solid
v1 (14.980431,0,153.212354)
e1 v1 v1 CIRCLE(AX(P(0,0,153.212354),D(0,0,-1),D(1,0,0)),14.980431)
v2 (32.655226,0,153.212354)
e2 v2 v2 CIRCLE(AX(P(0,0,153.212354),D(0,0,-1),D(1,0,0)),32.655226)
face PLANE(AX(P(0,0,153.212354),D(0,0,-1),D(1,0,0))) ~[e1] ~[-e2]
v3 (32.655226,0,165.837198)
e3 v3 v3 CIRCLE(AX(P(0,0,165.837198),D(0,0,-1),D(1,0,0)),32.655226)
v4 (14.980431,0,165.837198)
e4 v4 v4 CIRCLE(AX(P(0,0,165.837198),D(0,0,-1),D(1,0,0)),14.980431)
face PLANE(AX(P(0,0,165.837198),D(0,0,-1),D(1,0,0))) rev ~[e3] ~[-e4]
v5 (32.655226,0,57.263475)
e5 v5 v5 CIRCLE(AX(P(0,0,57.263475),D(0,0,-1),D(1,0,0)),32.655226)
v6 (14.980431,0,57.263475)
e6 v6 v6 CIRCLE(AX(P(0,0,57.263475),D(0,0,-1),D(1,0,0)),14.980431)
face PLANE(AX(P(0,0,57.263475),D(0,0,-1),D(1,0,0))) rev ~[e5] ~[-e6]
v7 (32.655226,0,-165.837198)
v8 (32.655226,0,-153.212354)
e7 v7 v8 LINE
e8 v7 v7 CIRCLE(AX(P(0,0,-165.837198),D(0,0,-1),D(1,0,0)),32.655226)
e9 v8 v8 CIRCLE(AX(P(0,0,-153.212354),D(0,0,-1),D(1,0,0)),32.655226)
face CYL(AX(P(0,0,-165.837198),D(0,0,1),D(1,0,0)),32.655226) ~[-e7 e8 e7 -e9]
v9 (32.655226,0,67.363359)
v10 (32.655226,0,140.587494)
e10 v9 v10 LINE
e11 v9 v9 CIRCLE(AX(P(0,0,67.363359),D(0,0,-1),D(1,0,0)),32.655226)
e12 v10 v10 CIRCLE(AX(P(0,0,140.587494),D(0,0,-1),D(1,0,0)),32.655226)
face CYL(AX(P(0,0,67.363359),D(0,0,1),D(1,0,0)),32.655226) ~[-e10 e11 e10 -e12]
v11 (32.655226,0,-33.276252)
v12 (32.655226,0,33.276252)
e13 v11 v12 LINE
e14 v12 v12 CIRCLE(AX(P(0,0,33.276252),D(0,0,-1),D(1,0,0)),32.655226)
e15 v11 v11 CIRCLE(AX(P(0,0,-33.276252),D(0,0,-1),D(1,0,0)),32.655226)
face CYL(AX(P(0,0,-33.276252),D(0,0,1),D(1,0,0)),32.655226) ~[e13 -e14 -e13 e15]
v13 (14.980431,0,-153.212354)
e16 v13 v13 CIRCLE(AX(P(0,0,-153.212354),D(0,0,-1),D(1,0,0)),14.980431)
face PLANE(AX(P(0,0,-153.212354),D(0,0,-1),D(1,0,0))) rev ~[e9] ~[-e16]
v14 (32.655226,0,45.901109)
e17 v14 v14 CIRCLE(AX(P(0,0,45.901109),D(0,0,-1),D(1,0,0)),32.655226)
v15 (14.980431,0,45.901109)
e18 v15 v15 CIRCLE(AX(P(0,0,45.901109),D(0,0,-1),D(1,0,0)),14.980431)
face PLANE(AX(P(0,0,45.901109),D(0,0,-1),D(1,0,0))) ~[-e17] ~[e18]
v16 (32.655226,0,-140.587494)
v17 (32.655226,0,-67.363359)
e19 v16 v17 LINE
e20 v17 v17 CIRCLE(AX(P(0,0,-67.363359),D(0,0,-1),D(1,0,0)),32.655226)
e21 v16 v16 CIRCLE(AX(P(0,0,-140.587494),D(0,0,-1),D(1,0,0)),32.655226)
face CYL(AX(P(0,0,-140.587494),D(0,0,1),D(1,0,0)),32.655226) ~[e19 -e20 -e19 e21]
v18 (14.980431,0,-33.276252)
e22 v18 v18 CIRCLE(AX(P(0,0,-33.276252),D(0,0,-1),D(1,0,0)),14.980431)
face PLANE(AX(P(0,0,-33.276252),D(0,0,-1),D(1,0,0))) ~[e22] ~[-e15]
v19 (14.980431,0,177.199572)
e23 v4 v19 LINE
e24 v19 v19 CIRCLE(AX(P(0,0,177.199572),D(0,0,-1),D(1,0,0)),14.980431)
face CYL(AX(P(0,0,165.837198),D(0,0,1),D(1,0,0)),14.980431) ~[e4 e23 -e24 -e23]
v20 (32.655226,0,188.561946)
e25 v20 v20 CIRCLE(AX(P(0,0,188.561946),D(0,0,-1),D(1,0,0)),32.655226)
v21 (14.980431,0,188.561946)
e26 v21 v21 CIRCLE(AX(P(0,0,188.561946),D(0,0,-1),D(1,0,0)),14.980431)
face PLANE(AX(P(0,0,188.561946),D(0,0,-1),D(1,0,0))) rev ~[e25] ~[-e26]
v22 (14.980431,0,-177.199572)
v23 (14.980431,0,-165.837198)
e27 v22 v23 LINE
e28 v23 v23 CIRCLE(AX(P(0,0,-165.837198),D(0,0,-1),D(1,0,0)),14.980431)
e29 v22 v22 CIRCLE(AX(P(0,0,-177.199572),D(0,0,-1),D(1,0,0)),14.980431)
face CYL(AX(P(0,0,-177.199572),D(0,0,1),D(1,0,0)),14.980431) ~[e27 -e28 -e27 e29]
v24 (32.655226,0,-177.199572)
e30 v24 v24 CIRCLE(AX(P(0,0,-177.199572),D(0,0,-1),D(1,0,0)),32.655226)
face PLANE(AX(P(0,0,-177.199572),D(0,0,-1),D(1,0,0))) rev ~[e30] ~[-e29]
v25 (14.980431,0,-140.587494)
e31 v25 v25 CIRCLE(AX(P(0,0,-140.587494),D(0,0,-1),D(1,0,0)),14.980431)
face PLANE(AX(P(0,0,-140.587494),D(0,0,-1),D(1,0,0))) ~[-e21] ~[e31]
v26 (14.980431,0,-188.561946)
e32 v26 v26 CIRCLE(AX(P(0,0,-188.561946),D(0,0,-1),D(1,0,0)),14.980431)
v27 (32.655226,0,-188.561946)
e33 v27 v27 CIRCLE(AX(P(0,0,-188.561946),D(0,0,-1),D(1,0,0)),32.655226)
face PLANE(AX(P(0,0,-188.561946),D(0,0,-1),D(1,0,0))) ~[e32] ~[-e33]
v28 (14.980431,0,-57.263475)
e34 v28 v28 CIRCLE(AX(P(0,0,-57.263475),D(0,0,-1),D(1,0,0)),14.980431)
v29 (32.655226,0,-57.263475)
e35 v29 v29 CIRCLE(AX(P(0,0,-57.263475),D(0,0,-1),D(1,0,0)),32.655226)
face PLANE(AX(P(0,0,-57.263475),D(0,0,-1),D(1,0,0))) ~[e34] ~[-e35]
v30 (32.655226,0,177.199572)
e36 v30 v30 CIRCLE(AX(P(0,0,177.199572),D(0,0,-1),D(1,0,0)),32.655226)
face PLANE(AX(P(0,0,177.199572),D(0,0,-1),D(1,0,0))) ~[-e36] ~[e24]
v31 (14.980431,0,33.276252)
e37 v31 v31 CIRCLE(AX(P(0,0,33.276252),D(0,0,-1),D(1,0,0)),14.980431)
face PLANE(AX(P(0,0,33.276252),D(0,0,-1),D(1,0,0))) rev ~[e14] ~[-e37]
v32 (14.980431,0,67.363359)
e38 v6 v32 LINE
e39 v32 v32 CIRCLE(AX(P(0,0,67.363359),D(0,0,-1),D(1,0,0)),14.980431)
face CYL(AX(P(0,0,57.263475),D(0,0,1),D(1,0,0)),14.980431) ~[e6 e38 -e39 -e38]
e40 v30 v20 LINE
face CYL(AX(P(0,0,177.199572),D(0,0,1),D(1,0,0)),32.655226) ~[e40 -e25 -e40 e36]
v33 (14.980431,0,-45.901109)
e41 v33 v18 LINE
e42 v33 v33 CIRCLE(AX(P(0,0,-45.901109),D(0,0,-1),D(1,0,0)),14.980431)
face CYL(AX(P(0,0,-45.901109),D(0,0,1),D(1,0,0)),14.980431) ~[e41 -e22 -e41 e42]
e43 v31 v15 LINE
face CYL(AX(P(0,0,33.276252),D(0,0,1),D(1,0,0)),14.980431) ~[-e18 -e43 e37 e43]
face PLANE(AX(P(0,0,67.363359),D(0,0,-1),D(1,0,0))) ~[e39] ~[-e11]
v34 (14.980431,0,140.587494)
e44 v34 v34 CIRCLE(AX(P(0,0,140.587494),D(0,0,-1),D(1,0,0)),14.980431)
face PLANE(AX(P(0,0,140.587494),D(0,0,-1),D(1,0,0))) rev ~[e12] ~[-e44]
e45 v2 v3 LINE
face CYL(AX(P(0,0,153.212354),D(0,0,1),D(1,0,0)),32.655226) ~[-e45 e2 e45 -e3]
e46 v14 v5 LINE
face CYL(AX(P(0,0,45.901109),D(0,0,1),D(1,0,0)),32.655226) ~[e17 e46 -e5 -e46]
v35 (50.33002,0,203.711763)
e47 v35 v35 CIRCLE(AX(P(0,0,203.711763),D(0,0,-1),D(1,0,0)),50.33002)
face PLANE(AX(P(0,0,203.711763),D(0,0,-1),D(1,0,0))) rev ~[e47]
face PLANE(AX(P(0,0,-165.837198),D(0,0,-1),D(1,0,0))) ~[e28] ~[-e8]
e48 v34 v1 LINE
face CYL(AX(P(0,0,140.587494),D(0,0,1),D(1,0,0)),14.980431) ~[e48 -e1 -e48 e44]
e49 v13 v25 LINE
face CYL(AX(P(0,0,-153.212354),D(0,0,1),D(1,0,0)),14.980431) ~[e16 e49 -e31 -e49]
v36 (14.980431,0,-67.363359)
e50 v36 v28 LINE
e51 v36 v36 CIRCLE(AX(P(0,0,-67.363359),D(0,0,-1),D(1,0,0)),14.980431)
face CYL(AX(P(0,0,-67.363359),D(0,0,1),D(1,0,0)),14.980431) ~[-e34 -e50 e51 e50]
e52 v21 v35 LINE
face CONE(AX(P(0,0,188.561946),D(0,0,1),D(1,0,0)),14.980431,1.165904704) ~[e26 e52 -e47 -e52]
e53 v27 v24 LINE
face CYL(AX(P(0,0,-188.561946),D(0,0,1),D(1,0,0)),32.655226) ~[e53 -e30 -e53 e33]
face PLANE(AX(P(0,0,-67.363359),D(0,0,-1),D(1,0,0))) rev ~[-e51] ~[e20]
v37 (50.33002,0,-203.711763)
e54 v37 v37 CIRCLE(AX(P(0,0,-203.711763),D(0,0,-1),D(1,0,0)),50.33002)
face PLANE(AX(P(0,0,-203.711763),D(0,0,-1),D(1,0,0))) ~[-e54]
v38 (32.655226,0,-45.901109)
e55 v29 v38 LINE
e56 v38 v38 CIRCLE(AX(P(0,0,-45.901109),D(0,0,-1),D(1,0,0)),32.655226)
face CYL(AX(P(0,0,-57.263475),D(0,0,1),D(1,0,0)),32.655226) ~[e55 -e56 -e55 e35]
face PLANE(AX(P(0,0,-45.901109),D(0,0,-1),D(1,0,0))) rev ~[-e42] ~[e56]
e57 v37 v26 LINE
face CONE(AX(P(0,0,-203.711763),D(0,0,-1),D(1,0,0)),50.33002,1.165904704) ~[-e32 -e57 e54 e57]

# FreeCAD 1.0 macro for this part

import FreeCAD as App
import Part
import Sketcher

doc = App.newDocument("Part")
params = doc.addObject("Spreadsheet::Sheet", "Params")
for row, (alias, value) in enumerate([
    ("revolution_angle", "360 deg"),
], start=1):
    params.set(f"A{row}", alias)
    params.set(f"B{row}", "=" + value)
    params.setAlias(f"B{row}", alias)

body = doc.addObject("PartDesign::Body", "Body")

sketch1 = doc.addObject("Sketcher::SketchObject", "Sketch")
body.addObject(sketch1)
sketch1.AttachmentSupport = (doc.XZ_Plane, [""])
sketch1.MapMode = "FlatFace"
sketch1.addGeometry(Part.LineSegment(App.Vector(0, 204, 0), App.Vector(0, -204, 0)), False)
sketch1.addGeometry(Part.LineSegment(App.Vector(0, -204, 0), App.Vector(50, -204, 0)), False)
sketch1.addGeometry(Part.LineSegment(App.Vector(50, -204, 0), App.Vector(15, -189, 0)), False)
sketch1.addGeometry(Part.LineSegment(App.Vector(15, -189, 0), App.Vector(33, -189, 0)), False)
sketch1.addGeometry(Part.LineSegment(App.Vector(33, -189, 0), App.Vector(33, -177, 0)), False)
sketch1.addGeometry(Part.LineSegment(App.Vector(33, -177, 0), App.Vector(15, -177, 0)), False)
sketch1.addGeometry(Part.LineSegment(App.Vector(15, -177, 0), App.Vector(15, -166, 0)), False)
sketch1.addGeometry(Part.LineSegment(App.Vector(15, -166, 0), App.Vector(33, -166, 0)), False)
sketch1.addGeometry(Part.LineSegment(App.Vector(33, -166, 0), App.Vector(33, -153, 0)), False)
sketch1.addGeometry(Part.LineSegment(App.Vector(33, -153, 0), App.Vector(15, -153, 0)), False)
sketch1.addGeometry(Part.LineSegment(App.Vector(15, -153, 0), App.Vector(15, -141, 0)), False)
sketch1.addGeometry(Part.LineSegment(App.Vector(15, -141, 0), App.Vector(33, -141, 0)), False)
sketch1.addGeometry(Part.LineSegment(App.Vector(33, -141, 0), App.Vector(33, -67, 0)), False)
sketch1.addGeometry(Part.LineSegment(App.Vector(33, -67, 0), App.Vector(15, -67, 0)), False)
sketch1.addGeometry(Part.LineSegment(App.Vector(15, -67, 0), App.Vector(15, -57, 0)), False)
sketch1.addGeometry(Part.LineSegment(App.Vector(15, -57, 0), App.Vector(33, -57, 0)), False)
sketch1.addGeometry(Part.LineSegment(App.Vector(33, -57, 0), App.Vector(33, -46, 0)), False)
sketch1.addGeometry(Part.LineSegment(App.Vector(33, -46, 0), App.Vector(15, -46, 0)), False)
sketch1.addGeometry(Part.LineSegment(App.Vector(15, -46, 0), App.Vector(15, -33, 0)), False)
sketch1.addGeometry(Part.LineSegment(App.Vector(15, -33, 0), App.Vector(33, -33, 0)), False)
sketch1.addGeometry(Part.LineSegment(App.Vector(33, -33, 0), App.Vector(33, 33, 0)), False)
sketch1.addGeometry(Part.LineSegment(App.Vector(33, 33, 0), App.Vector(15, 33, 0)), False)
sketch1.addGeometry(Part.LineSegment(App.Vector(15, 33, 0), App.Vector(15, 46, 0)), False)
sketch1.addGeometry(Part.LineSegment(App.Vector(15, 46, 0), App.Vector(33, 46, 0)), False)
sketch1.addGeometry(Part.LineSegment(App.Vector(33, 46, 0), App.Vector(33, 57, 0)), False)
sketch1.addGeometry(Part.LineSegment(App.Vector(33, 57, 0), App.Vector(15, 57, 0)), False)
sketch1.addGeometry(Part.LineSegment(App.Vector(15, 57, 0), App.Vector(15, 67, 0)), False)
sketch1.addGeometry(Part.LineSegment(App.Vector(15, 67, 0), App.Vector(33, 67, 0)), False)
sketch1.addGeometry(Part.LineSegment(App.Vector(33, 67, 0), App.Vector(33, 141, 0)), False)
sketch1.addGeometry(Part.LineSegment(App.Vector(33, 141, 0), App.Vector(15, 141, 0)), False)
sketch1.addGeometry(Part.LineSegment(App.Vector(15, 141, 0), App.Vector(15, 153, 0)), False)
sketch1.addGeometry(Part.LineSegment(App.Vector(15, 153, 0), App.Vector(33, 153, 0)), False)
sketch1.addGeometry(Part.LineSegment(App.Vector(33, 153, 0), App.Vector(33, 166, 0)), False)
sketch1.addGeometry(Part.LineSegment(App.Vector(33, 166, 0), App.Vector(15, 166, 0)), False)
sketch1.addGeometry(Part.LineSegment(App.Vector(15, 166, 0), App.Vector(15, 177, 0)), False)
sketch1.addGeometry(Part.LineSegment(App.Vector(15, 177, 0), App.Vector(33, 177, 0)), False)
sketch1.addGeometry(Part.LineSegment(App.Vector(33, 177, 0), App.Vector(33, 189, 0)), False)
sketch1.addGeometry(Part.LineSegment(App.Vector(33, 189, 0), App.Vector(15, 189, 0)), False)
sketch1.addGeometry(Part.LineSegment(App.Vector(15, 189, 0), App.Vector(50, 204, 0)), False)
sketch1.addGeometry(Part.LineSegment(App.Vector(50, 204, 0), App.Vector(0, 204, 0)), False)
sketch1.addConstraint(Sketcher.Constraint("Coincident", 0, 2, 1, 1))
sketch1.addConstraint(Sketcher.Constraint("Coincident", 1, 2, 2, 1))
sketch1.addConstraint(Sketcher.Constraint("Coincident", 2, 2, 3, 1))
sketch1.addConstraint(Sketcher.Constraint("Coincident", 3, 2, 4, 1))
sketch1.addConstraint(Sketcher.Constraint("Coincident", 4, 2, 5, 1))
sketch1.addConstraint(Sketcher.Constraint("Coincident", 5, 2, 6, 1))
sketch1.addConstraint(Sketcher.Constraint("Coincident", 6, 2, 7, 1))
sketch1.addConstraint(Sketcher.Constraint("Coincident", 7, 2, 8, 1))
sketch1.addConstraint(Sketcher.Constraint("Coincident", 8, 2, 9, 1))
sketch1.addConstraint(Sketcher.Constraint("Coincident", 9, 2, 10, 1))
sketch1.addConstraint(Sketcher.Constraint("Coincident", 10, 2, 11, 1))
sketch1.addConstraint(Sketcher.Constraint("Coincident", 11, 2, 12, 1))
sketch1.addConstraint(Sketcher.Constraint("Coincident", 12, 2, 13, 1))
sketch1.addConstraint(Sketcher.Constraint("Coincident", 13, 2, 14, 1))
sketch1.addConstraint(Sketcher.Constraint("Coincident", 14, 2, 15, 1))
sketch1.addConstraint(Sketcher.Constraint("Coincident", 15, 2, 16, 1))
sketch1.addConstraint(Sketcher.Constraint("Coincident", 16, 2, 17, 1))
sketch1.addConstraint(Sketcher.Constraint("Coincident", 17, 2, 18, 1))
sketch1.addConstraint(Sketcher.Constraint("Coincident", 18, 2, 19, 1))
sketch1.addConstraint(Sketcher.Constraint("Coincident", 19, 2, 20, 1))
sketch1.addConstraint(Sketcher.Constraint("Coincident", 20, 2, 21, 1))
sketch1.addConstraint(Sketcher.Constraint("Coincident", 21, 2, 22, 1))
sketch1.addConstraint(Sketcher.Constraint("Coincident", 22, 2, 23, 1))
sketch1.addConstraint(Sketcher.Constraint("Coincident", 23, 2, 24, 1))
sketch1.addConstraint(Sketcher.Constraint("Coincident", 24, 2, 25, 1))
sketch1.addConstraint(Sketcher.Constraint("Coincident", 25, 2, 26, 1))
sketch1.addConstraint(Sketcher.Constraint("Coincident", 26, 2, 27, 1))
sketch1.addConstraint(Sketcher.Constraint("Coincident", 27, 2, 28, 1))
sketch1.addConstraint(Sketcher.Constraint("Coincident", 28, 2, 29, 1))
sketch1.addConstraint(Sketcher.Constraint("Coincident", 29, 2, 30, 1))
sketch1.addConstraint(Sketcher.Constraint("Coincident", 30, 2, 31, 1))
sketch1.addConstraint(Sketcher.Constraint("Coincident", 31, 2, 32, 1))
sketch1.addConstraint(Sketcher.Constraint("Coincident", 32, 2, 33, 1))
sketch1.addConstraint(Sketcher.Constraint("Coincident", 33, 2, 34, 1))
sketch1.addConstraint(Sketcher.Constraint("Coincident", 34, 2, 35, 1))
sketch1.addConstraint(Sketcher.Constraint("Coincident", 35, 2, 36, 1))
sketch1.addConstraint(Sketcher.Constraint("Coincident", 36, 2, 37, 1))
sketch1.addConstraint(Sketcher.Constraint("Coincident", 37, 2, 38, 1))
sketch1.addConstraint(Sketcher.Constraint("Coincident", 38, 2, 39, 1))
sketch1.addConstraint(Sketcher.Constraint("Coincident", 39, 2, 0, 1))
sketch1.addConstraint(Sketcher.Constraint("Vertical", 0))
sketch1.addConstraint(Sketcher.Constraint("Horizontal", 1))
sketch1.addConstraint(Sketcher.Constraint("Horizontal", 3))
sketch1.addConstraint(Sketcher.Constraint("Vertical", 4))
sketch1.addConstraint(Sketcher.Constraint("Horizontal", 5))
sketch1.addConstraint(Sketcher.Constraint("Vertical", 6))
sketch1.addConstraint(Sketcher.Constraint("Horizontal", 7))
sketch1.addConstraint(Sketcher.Constraint("Vertical", 8))
sketch1.addConstraint(Sketcher.Constraint("Horizontal", 9))
sketch1.addConstraint(Sketcher.Constraint("Vertical", 10))
sketch1.addConstraint(Sketcher.Constraint("Horizontal", 11))
sketch1.addConstraint(Sketcher.Constraint("Vertical", 12))
sketch1.addConstraint(Sketcher.Constraint("Horizontal", 13))
sketch1.addConstraint(Sketcher.Constraint("Vertical", 14))
sketch1.addConstraint(Sketcher.Constraint("Horizontal", 15))
sketch1.addConstraint(Sketcher.Constraint("Vertical", 16))
sketch1.addConstraint(Sketcher.Constraint("Horizontal", 17))
sketch1.addConstraint(Sketcher.Constraint("Vertical", 18))
sketch1.addConstraint(Sketcher.Constraint("Horizontal", 19))
sketch1.addConstraint(Sketcher.Constraint("Vertical", 20))
sketch1.addConstraint(Sketcher.Constraint("Horizontal", 21))
sketch1.addConstraint(Sketcher.Constraint("Vertical", 22))
sketch1.addConstraint(Sketcher.Constraint("Horizontal", 23))
sketch1.addConstraint(Sketcher.Constraint("Vertical", 24))
sketch1.addConstraint(Sketcher.Constraint("Horizontal", 25))
sketch1.addConstraint(Sketcher.Constraint("Vertical", 26))
sketch1.addConstraint(Sketcher.Constraint("Horizontal", 27))
sketch1.addConstraint(Sketcher.Constraint("Vertical", 28))
sketch1.addConstraint(Sketcher.Constraint("Horizontal", 29))
sketch1.addConstraint(Sketcher.Constraint("Vertical", 30))
sketch1.addConstraint(Sketcher.Constraint("Horizontal", 31))
sketch1.addConstraint(Sketcher.Constraint("Vertical", 32))
sketch1.addConstraint(Sketcher.Constraint("Horizontal", 33))
sketch1.addConstraint(Sketcher.Constraint("Vertical", 34))
sketch1.addConstraint(Sketcher.Constraint("Horizontal", 35))
sketch1.addConstraint(Sketcher.Constraint("Vertical", 36))
sketch1.addConstraint(Sketcher.Constraint("Horizontal", 37))
sketch1.addConstraint(Sketcher.Constraint("Horizontal", 39))
sketch1.addConstraint(Sketcher.Constraint("Symmetric", 0, 2, 39, 2, -1, 1))
sketch1.addConstraint(Sketcher.Constraint("Symmetric", 18, 2, 21, 2, -1))
sketch1.addConstraint(Sketcher.Constraint("Symmetric", 16, 2, 23, 2, -1))
sketch1.addConstraint(Sketcher.Constraint("Symmetric", 14, 2, 25, 2, -1))
sketch1.addConstraint(Sketcher.Constraint("Symmetric", 12, 2, 27, 2, -1))
sketch1.addConstraint(Sketcher.Constraint("Symmetric", 10, 2, 29, 2, -1))
sketch1.addConstraint(Sketcher.Constraint("Symmetric", 8, 2, 31, 2, -1))
sketch1.addConstraint(Sketcher.Constraint("Symmetric", 6, 2, 33, 2, -1))
sketch1.addConstraint(Sketcher.Constraint("Symmetric", 4, 2, 35, 2, -1))
sketch1.addConstraint(Sketcher.Constraint("Symmetric", 2, 2, 37, 2, -1))
sketch1.addConstraint(Sketcher.Constraint("Vertical", 2, 2, 5, 2))
sketch1.addConstraint(Sketcher.Constraint("Vertical", 4, 2, 7, 2))
sketch1.addConstraint(Sketcher.Constraint("Vertical", 6, 2, 9, 2))
sketch1.addConstraint(Sketcher.Constraint("Vertical", 8, 2, 11, 2))
sketch1.addConstraint(Sketcher.Constraint("Vertical", 10, 2, 13, 2))
sketch1.addConstraint(Sketcher.Constraint("Vertical", 12, 2, 15, 2))
sketch1.addConstraint(Sketcher.Constraint("Vertical", 14, 2, 17, 2))
sketch1.addConstraint(Sketcher.Constraint("Vertical", 16, 2, 19, 2))
sketch1.addConstraint(Sketcher.Constraint("Vertical", 1, 2, 38, 2))
sketch1.addConstraint(Sketcher.Constraint("Equal", 4, 6))
sketch1.addConstraint(Sketcher.Constraint("DistanceX", 1, 1, 1, 2, 50.33002))
sketch1.addConstraint(Sketcher.Constraint("DistanceY", 10, 1, 10, 2, 12.62486))
sketch1.addConstraint(Sketcher.Constraint("DistanceY", 6, 2, -1, 1, 165.837198))
sketch1.addConstraint(Sketcher.Constraint("DistanceX", 3, 1, 3, 2, 17.674795))
sketch1.addConstraint(Sketcher.Constraint("DistanceY", 0, 2, 0, 1, 407.423526))
sketch1.addConstraint(Sketcher.Constraint("DistanceY", 4, 1, 4, 2, 11.362374))
sketch1.addConstraint(Sketcher.Constraint("DistanceY", 8, 1, 8, 2, 12.624844))
sketch1.addConstraint(Sketcher.Constraint("DistanceY", 12, 1, 12, 2, 73.224135))
sketch1.addConstraint(Sketcher.Constraint("DistanceY", 14, 1, 14, 2, 10.099884))
sketch1.addConstraint(Sketcher.Constraint("DistanceY", 16, 1, 16, 2, 11.362366))
sketch1.addConstraint(Sketcher.Constraint("DistanceY", 18, 1, 18, 2, 12.624857))
sketch1.addConstraint(Sketcher.Constraint("DistanceX", -1, 1, 2, 2, 14.980431))
revolution = doc.addObject("PartDesign::Revolution", "Revolution")
body.addObject(revolution)
revolution.Profile = sketch1
revolution.ReferenceAxis = (sketch1, ["V_Axis"])
revolution.setExpression("Angle", "Params.revolution_angle")

doc.recompute()
